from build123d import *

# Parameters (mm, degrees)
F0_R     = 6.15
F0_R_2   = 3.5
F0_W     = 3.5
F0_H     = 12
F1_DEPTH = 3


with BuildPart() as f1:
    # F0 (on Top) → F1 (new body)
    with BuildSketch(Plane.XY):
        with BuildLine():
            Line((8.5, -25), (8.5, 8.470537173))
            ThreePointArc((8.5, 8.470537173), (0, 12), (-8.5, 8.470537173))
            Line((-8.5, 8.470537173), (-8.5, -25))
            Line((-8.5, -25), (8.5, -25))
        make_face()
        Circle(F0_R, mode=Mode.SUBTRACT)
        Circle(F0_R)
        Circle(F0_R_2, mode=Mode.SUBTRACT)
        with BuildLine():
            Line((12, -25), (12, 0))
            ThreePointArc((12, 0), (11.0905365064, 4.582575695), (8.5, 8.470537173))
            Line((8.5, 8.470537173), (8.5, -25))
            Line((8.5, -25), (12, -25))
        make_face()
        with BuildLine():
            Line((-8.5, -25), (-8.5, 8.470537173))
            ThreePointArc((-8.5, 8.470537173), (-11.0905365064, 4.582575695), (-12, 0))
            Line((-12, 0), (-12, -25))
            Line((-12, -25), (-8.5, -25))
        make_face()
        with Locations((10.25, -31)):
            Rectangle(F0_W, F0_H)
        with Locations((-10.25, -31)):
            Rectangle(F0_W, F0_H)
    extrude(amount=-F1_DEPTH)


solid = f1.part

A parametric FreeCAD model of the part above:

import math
import FreeCAD as App
import Part
import Sketcher

V = App.Vector
Q = App.Units.Quantity

doc = App.newDocument("Part")
body = doc.addObject("PartDesign::Body", "Body")

# Sketch on XY plane
sketch1 = doc.addObject("Sketcher::SketchObject", "Sketch")
body.addObject(sketch1)
sketch1.AttachmentSupport = (doc.XY_Plane, [""])
sketch1.MapMode = "FlatFace"
sketch1.addGeometry([
    Part.ArcOfCircle(Part.Circle(V(0, 0, 0), V(0, 0, 1), 12), math.radians(0), math.radians(44.900528)),  # 0
    Part.ArcOfCircle(Part.Circle(V(0, 0, 0), V(0, 0, 1), 12), math.radians(44.900528), math.radians(135.099472)),  # 1
    Part.ArcOfCircle(Part.Circle(V(0, 0, 0), V(0, 0, 1), 12), math.radians(135.099472), math.radians(180)),  # 2
    Part.LineSegment(V(-12, 0, 0), V(-12, -37, 0)),  # 3
    Part.LineSegment(V(-12, -37, 0), V(-8.5, -37, 0)),  # 4
    Part.LineSegment(V(-8.5, -37, 0), V(-8.5, -25, 0)),  # 5
    Part.LineSegment(V(-8.5, -25, 0), V(8.5, -25, 0)),  # 6
    Part.LineSegment(V(8.5, -25, 0), V(8.5, -37, 0)),  # 7
    Part.LineSegment(V(8.5, -37, 0), V(12, -37, 0)),  # 8
    Part.LineSegment(V(12, -37, 0), V(12, 0, 0)),  # 9
    Part.Circle(V(0, 0, 0), V(0, 0, 1), 3.5),  # 10
], False)
sketch1.addConstraint([
    Sketcher.Constraint("Tangent", 0, 2, 1, 1),
    Sketcher.Constraint("Tangent", 1, 2, 2, 1),
    Sketcher.Constraint("Tangent", 2, 2, 3, 1),
    Sketcher.Constraint("Coincident", 3, 2, 4, 1),
    Sketcher.Constraint("Coincident", 4, 2, 5, 1),
    Sketcher.Constraint("Coincident", 5, 2, 6, 1),
    Sketcher.Constraint("Coincident", 6, 2, 7, 1),
    Sketcher.Constraint("Coincident", 7, 2, 8, 1),
    Sketcher.Constraint("Coincident", 8, 2, 9, 1),
    Sketcher.Constraint("Tangent", 9, 2, 0, 1),
    Sketcher.Constraint("Vertical", 3),
    Sketcher.Constraint("Horizontal", 4),
    Sketcher.Constraint("Vertical", 5),
    Sketcher.Constraint("Horizontal", 6),
    Sketcher.Constraint("Vertical", 7),
    Sketcher.Constraint("Horizontal", 8),
    Sketcher.Constraint("Vertical", 9),
    Sketcher.Constraint("Coincident", 0, 3, -1, 1),
    Sketcher.Constraint("Coincident", 2, 3, -1, 1),
    Sketcher.Constraint("Coincident", 10, 3, -1, 1),
    Sketcher.Constraint("Symmetric", 4, 2, 7, 2, -2),
    Sketcher.Constraint("Horizontal", 0, 2, 1, 2),
    Sketcher.Constraint("Vertical", 1, 2, 4, 2),
    Sketcher.Constraint("Diameter", 10, Q("7 mm")),
    Sketcher.Constraint("Radius", 0, Q("12 mm")),
    Sketcher.Constraint("DistanceX", 6, 1, 6, 2, Q("17 mm")),
    Sketcher.Constraint("DistanceY", 3, 2, 3, 1, Q("37 mm")),
    Sketcher.Constraint("DistanceY", 5, 1, 5, 2, Q("12 mm")),
])
pad1 = doc.addObject("PartDesign::Pad", "Pad")
body.addObject(pad1)
pad1.Profile = sketch1
pad1.Length = 3
pad1.Reversed = True

doc.recompute()
